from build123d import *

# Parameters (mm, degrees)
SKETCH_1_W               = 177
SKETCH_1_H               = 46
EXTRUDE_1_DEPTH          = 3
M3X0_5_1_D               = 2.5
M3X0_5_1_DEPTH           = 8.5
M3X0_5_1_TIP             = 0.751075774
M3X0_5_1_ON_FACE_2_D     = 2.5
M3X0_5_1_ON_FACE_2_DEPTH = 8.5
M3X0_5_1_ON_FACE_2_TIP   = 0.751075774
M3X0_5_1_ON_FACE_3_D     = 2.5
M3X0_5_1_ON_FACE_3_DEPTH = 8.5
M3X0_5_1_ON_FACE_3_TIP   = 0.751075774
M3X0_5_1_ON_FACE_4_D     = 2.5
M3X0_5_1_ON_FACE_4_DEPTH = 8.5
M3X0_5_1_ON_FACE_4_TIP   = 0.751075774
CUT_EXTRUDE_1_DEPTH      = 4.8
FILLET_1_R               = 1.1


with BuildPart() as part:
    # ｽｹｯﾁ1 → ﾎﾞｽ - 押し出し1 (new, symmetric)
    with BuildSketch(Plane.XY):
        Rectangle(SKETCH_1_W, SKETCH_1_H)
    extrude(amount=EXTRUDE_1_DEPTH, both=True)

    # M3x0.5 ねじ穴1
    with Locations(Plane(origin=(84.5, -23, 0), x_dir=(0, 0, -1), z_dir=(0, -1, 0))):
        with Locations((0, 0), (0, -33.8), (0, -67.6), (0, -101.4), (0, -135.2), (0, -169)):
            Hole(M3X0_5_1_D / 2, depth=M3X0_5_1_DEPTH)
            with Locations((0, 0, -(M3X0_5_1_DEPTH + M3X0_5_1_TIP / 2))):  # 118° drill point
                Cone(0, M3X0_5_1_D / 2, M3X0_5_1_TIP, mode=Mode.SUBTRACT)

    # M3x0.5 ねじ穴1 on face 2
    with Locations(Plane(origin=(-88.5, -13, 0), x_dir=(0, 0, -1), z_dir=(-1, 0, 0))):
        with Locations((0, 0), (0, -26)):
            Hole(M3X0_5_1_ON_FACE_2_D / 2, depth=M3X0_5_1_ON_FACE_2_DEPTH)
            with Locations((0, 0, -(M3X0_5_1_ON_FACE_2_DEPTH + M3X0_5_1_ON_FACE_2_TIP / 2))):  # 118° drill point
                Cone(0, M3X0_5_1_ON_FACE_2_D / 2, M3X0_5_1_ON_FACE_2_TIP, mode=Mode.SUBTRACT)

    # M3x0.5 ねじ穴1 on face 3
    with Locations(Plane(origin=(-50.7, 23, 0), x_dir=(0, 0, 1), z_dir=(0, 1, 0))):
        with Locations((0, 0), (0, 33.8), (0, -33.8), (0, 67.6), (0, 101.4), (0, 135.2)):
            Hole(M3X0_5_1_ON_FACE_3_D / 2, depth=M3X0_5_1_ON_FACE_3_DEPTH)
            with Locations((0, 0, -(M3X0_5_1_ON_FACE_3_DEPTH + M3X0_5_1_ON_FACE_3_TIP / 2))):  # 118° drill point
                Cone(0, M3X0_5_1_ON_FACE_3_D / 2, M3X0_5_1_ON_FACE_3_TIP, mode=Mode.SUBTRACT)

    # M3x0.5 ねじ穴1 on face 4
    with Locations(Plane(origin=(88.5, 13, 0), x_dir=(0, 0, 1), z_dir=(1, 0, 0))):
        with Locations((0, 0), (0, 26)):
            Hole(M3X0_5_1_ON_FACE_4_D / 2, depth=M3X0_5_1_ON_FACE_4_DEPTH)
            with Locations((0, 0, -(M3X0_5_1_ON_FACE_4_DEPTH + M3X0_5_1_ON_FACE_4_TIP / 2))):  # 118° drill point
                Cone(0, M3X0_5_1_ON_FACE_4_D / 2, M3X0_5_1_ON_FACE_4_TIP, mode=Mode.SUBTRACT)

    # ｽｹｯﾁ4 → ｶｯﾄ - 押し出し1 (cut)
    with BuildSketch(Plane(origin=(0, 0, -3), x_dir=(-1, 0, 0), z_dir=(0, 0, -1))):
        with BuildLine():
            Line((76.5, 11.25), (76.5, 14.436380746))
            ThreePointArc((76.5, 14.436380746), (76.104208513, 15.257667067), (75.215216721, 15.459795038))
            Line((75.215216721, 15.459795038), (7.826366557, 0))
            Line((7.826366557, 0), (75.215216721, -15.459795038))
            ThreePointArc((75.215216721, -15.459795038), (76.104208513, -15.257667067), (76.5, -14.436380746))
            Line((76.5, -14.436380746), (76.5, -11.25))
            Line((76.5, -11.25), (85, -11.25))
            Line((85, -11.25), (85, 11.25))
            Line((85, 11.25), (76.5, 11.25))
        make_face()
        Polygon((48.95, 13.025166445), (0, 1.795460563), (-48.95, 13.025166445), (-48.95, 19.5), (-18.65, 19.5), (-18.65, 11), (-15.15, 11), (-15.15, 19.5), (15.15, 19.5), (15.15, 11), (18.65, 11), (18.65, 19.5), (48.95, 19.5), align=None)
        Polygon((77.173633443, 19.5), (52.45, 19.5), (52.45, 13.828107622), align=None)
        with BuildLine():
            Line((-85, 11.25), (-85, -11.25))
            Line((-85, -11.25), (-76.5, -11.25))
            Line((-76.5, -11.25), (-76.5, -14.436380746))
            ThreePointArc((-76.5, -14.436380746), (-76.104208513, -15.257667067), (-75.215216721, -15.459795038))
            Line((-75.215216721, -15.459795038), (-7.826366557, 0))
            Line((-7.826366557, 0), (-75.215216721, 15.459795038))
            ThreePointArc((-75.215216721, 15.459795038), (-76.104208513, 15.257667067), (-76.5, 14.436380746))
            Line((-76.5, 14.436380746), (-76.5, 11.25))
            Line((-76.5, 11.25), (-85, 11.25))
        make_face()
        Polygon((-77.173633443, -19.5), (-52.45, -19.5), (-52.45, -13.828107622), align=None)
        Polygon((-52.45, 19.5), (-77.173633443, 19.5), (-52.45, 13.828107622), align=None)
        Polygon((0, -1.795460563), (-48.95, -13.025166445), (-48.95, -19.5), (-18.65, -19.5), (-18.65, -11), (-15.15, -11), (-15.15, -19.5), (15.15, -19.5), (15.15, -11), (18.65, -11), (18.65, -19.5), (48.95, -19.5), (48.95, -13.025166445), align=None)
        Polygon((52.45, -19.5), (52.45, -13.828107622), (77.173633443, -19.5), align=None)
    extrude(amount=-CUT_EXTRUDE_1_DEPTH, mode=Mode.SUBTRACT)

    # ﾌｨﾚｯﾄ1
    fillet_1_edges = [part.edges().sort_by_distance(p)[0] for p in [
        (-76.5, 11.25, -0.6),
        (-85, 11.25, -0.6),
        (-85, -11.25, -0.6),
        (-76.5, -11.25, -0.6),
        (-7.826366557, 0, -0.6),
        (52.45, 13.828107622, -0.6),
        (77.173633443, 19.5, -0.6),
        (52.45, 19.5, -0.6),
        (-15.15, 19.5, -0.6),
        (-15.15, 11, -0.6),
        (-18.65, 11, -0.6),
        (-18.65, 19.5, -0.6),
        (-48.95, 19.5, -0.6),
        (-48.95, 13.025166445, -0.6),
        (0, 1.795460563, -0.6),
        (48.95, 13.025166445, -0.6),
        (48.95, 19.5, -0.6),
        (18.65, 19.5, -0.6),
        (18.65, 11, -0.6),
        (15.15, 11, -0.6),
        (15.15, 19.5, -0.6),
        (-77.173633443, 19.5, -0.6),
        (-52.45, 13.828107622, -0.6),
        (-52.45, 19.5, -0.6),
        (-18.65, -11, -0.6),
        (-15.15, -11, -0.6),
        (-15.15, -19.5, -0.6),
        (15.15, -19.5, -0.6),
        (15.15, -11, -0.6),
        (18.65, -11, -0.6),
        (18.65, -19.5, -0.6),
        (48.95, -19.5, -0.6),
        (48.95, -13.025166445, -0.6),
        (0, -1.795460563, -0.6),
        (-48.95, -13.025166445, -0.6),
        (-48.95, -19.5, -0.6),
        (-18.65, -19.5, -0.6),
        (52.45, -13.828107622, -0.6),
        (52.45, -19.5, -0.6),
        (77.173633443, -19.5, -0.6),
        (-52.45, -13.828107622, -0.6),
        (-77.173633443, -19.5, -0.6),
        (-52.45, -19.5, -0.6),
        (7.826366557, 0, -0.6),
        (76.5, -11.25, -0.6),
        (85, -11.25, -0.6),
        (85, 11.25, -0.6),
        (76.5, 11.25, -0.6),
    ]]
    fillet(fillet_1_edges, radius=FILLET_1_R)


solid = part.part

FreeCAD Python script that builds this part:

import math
import FreeCAD as App
import Part
import Sketcher


def edges_at(feature, points):
    """Names of the edges that pass closest to the given points."""
    edges = feature.Shape.Edges
    near = lambda p: min(range(len(edges)), key=lambda i: edges[i].distToShape(Part.Vertex(*p))[0])
    return sorted({f"Edge{near(p) + 1}" for p in points})


def add_polygon(sketch, points):
    """Adds a closed chain of lines whose ends are joined by coincident constraints."""
    first, n = sketch.GeometryCount, len(points)
    for a, b in zip(points, points[1:] + points[:1]):
        sketch.addGeometry(Part.LineSegment(App.Vector(*a, 0), App.Vector(*b, 0)), False)
    for i in range(n):
        sketch.addConstraint(Sketcher.Constraint("Coincident", first + i, 2, first + (i + 1) % n, 1))

doc = App.newDocument("Part")
body = doc.addObject("PartDesign::Body", "Body")

# Sketch on XY plane
sketch1 = body.newObject("Sketcher::SketchObject", "Sketch")
sketch1.AttachmentSupport = (doc.getObject("XY_Plane"), [""])
sketch1.MapMode = "FlatFace"
add_polygon(sketch1, [(-88.5, 23), (-88.5, -23), (88.5, -23), (88.5, 23)])  # lines 0-3
sketch1.addConstraint([
    Sketcher.Constraint("Vertical", 0),
    Sketcher.Constraint("Horizontal", 1),
    Sketcher.Constraint("Vertical", 2),
    Sketcher.Constraint("Horizontal", 3),
    Sketcher.Constraint("Symmetric", 0, 2, 2, 2, -1, 1),
    Sketcher.Constraint("DistanceX", 1, 1, 1, 2, 177.0),
    Sketcher.Constraint("DistanceY", 0, 2, 0, 1, 46.0),
])
pad1 = body.newObject("PartDesign::Pad", "Pad")
pad1.Profile = sketch1
pad1.Length = 6
pad1.Midplane = True

# Sketch on XZ plane
sketch2 = body.newObject("Sketcher::SketchObject", "Sketch001")
sketch2.AttachmentSupport = (doc.getObject("XZ_Plane"), [""])
sketch2.MapMode = "FlatFace"
sketch2.AttachmentOffset = App.Placement(App.Vector(0, 0, 23), App.Rotation())
sketch2.addGeometry([
    Part.Circle(App.Vector(84.5, 0, 0), App.Vector(0, 0, 1), 1.25),  # 0
    Part.Circle(App.Vector(50.7, 0, 0), App.Vector(0, 0, 1), 1.25),  # 1
    Part.Circle(App.Vector(16.9, 0, 0), App.Vector(0, 0, 1), 1.25),  # 2
    Part.Circle(App.Vector(-16.9, 0, 0), App.Vector(0, 0, 1), 1.25),  # 3
    Part.Circle(App.Vector(-50.7, 0, 0), App.Vector(0, 0, 1), 1.25),  # 4
    Part.Circle(App.Vector(-84.5, 0, 0), App.Vector(0, 0, 1), 1.25),  # 5
], False)
sketch2.addConstraint([
    Sketcher.Constraint("Equal", 0, 1),
    Sketcher.Constraint("Equal", 1, 2),
    Sketcher.Constraint("Equal", 2, 3),
    Sketcher.Constraint("Equal", 3, 4),
    Sketcher.Constraint("Equal", 4, 5),
    Sketcher.Constraint("Symmetric", 2, 3, 3, 3, -1, 1),
    Sketcher.Constraint("Symmetric", 1, 3, 4, 3, -1, 1),
    Sketcher.Constraint("Symmetric", 0, 3, 5, 3, -1, 1),
    Sketcher.Constraint("PointOnObject", 0, 3, -1),
    Sketcher.Constraint("PointOnObject", 1, 3, -1),
    Sketcher.Constraint("PointOnObject", 2, 3, -1),
    Sketcher.Constraint("Diameter", 0, 2.5),
    Sketcher.Constraint("DistanceX", 5, 3, 0, 3, 169.0),
    Sketcher.Constraint("DistanceX", -1, 1, 1, 3, 50.7),
    Sketcher.Constraint("DistanceX", -1, 1, 2, 3, 16.9),
])
doc.recompute()
hole = body.newObject("PartDesign::Hole", "Hole")
hole.Profile = sketch2
hole.ThreadType = "None"
hole.Diameter = 2.5
hole.DepthType = "Dimension"
hole.Depth = 8.5
hole.DrillPoint = "Angled"
hole.DrillPointAngle = 118

# Sketch on YZ plane
sketch3 = body.newObject("Sketcher::SketchObject", "Sketch002")
sketch3.AttachmentSupport = (doc.getObject("YZ_Plane"), [""])
sketch3.MapMode = "FlatFace"
sketch3.AttachmentOffset = App.Placement(App.Vector(0, 0, -88.5), App.Rotation())
sketch3.addGeometry([
    Part.Circle(App.Vector(-13, 0, 0), App.Vector(0, 0, 1), 1.25),
    Part.Circle(App.Vector(13, 0, 0), App.Vector(0, 0, 1), 1.25),
], False)
sketch3.addConstraint([
    Sketcher.Constraint("Equal", 0, 1),
    Sketcher.Constraint("Symmetric", 0, 3, 1, 3, -1, 1),
    Sketcher.Constraint("PointOnObject", 0, 3, -1),
    Sketcher.Constraint("Diameter", 0, 2.5),
    Sketcher.Constraint("DistanceX", 0, 3, -1, 1, 13.0),
])
doc.recompute()
hole2 = body.newObject("PartDesign::Hole", "Hole001")
hole2.Profile = sketch3
hole2.ThreadType = "None"
hole2.Diameter = 2.5
hole2.DepthType = "Dimension"
hole2.Depth = 8.5
hole2.DrillPoint = "Angled"
hole2.DrillPointAngle = 118
hole2.Reversed = True

# Sketch on XZ plane
sketch4 = body.newObject("Sketcher::SketchObject", "Sketch003")
sketch4.AttachmentSupport = (doc.getObject("XZ_Plane"), [""])
sketch4.MapMode = "FlatFace"
sketch4.AttachmentOffset = App.Placement(App.Vector(0, 0, -23), App.Rotation())
sketch4.addGeometry([
    Part.Circle(App.Vector(-50.7, 0, 0), App.Vector(0, 0, 1), 1.25),  # 0
    Part.Circle(App.Vector(-16.9, 0, 0), App.Vector(0, 0, 1), 1.25),  # 1
    Part.Circle(App.Vector(-84.5, 0, 0), App.Vector(0, 0, 1), 1.25),  # 2
    Part.Circle(App.Vector(16.9, 0, 0), App.Vector(0, 0, 1), 1.25),  # 3
    Part.Circle(App.Vector(50.7, 0, 0), App.Vector(0, 0, 1), 1.25),  # 4
    Part.Circle(App.Vector(84.5, 0, 0), App.Vector(0, 0, 1), 1.25),  # 5
], False)
sketch4.addConstraint([
    Sketcher.Constraint("Equal", 0, 1),
    Sketcher.Constraint("Equal", 1, 2),
    Sketcher.Constraint("Equal", 2, 3),
    Sketcher.Constraint("Equal", 3, 4),
    Sketcher.Constraint("Equal", 4, 5),
    Sketcher.Constraint("Symmetric", 1, 3, 3, 3, -1, 1),
    Sketcher.Constraint("Symmetric", 0, 3, 4, 3, -1, 1),
    Sketcher.Constraint("Symmetric", 2, 3, 5, 3, -1, 1),
    Sketcher.Constraint("PointOnObject", 0, 3, -1),
    Sketcher.Constraint("PointOnObject", 1, 3, -1),
    Sketcher.Constraint("PointOnObject", 2, 3, -1),
    Sketcher.Constraint("Diameter", 0, 2.5),
    Sketcher.Constraint("DistanceX", 2, 3, 5, 3, 169.0),
    Sketcher.Constraint("DistanceX", 0, 3, -1, 1, 50.7),
    Sketcher.Constraint("DistanceX", 1, 3, -1, 1, 16.9),
])
doc.recompute()
hole3 = body.newObject("PartDesign::Hole", "Hole002")
hole3.Profile = sketch4
hole3.ThreadType = "None"
hole3.Diameter = 2.5
hole3.DepthType = "Dimension"
hole3.Depth = 8.5
hole3.DrillPoint = "Angled"
hole3.DrillPointAngle = 118
hole3.Reversed = True

# Sketch on YZ plane
sketch5 = body.newObject("Sketcher::SketchObject", "Sketch004")
sketch5.AttachmentSupport = (doc.getObject("YZ_Plane"), [""])
sketch5.MapMode = "FlatFace"
sketch5.AttachmentOffset = App.Placement(App.Vector(0, 0, 88.5), App.Rotation())
sketch5.addGeometry([
    Part.Circle(App.Vector(13, 0, 0), App.Vector(0, 0, 1), 1.25),
    Part.Circle(App.Vector(-13, 0, 0), App.Vector(0, 0, 1), 1.25),
], False)
sketch5.addConstraint([
    Sketcher.Constraint("Equal", 0, 1),
    Sketcher.Constraint("Symmetric", 0, 3, 1, 3, -1, 1),
    Sketcher.Constraint("PointOnObject", 0, 3, -1),
    Sketcher.Constraint("Diameter", 0, 2.5),
    Sketcher.Constraint("DistanceX", -1, 1, 0, 3, 13.0),
])
doc.recompute()
hole4 = body.newObject("PartDesign::Hole", "Hole003")
hole4.Profile = sketch5
hole4.ThreadType = "None"
hole4.Diameter = 2.5
hole4.DepthType = "Dimension"
hole4.Depth = 8.5
hole4.DrillPoint = "Angled"
hole4.DrillPointAngle = 118

# Sketch on XY plane
sketch6 = body.newObject("Sketcher::SketchObject", "Sketch005")
sketch6.AttachmentSupport = (doc.getObject("XY_Plane"), [""])
sketch6.MapMode = "FlatFace"
sketch6.AttachmentOffset = App.Placement(App.Vector(0, 0, -3), App.Rotation())
sketch6.addGeometry(Part.LineSegment(App.Vector(-76.5, 11.25, 0), App.Vector(-76.5, 14.436381, 0)), False)  # 0
sketch6.addGeometry(Part.ArcOfCircle(Part.Circle(App.Vector(-75.45, 14.436381, 0), App.Vector(0, 0, 1), 1.05), math.radians(77.07925), math.radians(180)), False)  # 1
sketch6.addGeometry(Part.LineSegment(App.Vector(-75.215217, 15.459795, 0), App.Vector(-7.826367, 0, 0)), False)  # 2
sketch6.addGeometry(Part.LineSegment(App.Vector(-7.826367, 0, 0), App.Vector(-75.215217, -15.459795, 0)), False)  # 3
sketch6.addGeometry(Part.ArcOfCircle(Part.Circle(App.Vector(-75.45, -14.436381, 0), App.Vector(0, 0, 1), 1.05), math.radians(-180), math.radians(-77.07925)), False)  # 4
sketch6.addGeometry(Part.LineSegment(App.Vector(-76.5, -14.436381, 0), App.Vector(-76.5, -11.25, 0)), False)  # 5
sketch6.addGeometry(Part.LineSegment(App.Vector(-76.5, -11.25, 0), App.Vector(-85, -11.25, 0)), False)  # 6
sketch6.addGeometry(Part.LineSegment(App.Vector(-85, -11.25, 0), App.Vector(-85, 11.25, 0)), False)  # 7
sketch6.addGeometry(Part.LineSegment(App.Vector(-85, 11.25, 0), App.Vector(-76.5, 11.25, 0)), False)  # 8
add_polygon(sketch6, [(0, 1.795461), (-48.95, 13.025166), (-48.95, 19.5), (-18.65, 19.5), (-18.65, 11), (-15.15, 11), (-15.15, 19.5), (15.15, 19.5), (15.15, 11), (18.65, 11), (18.65, 19.5), (48.95, 19.5), (48.95, 13.025166)])  # lines 9-21
add_polygon(sketch6, [(-77.173633, 19.5), (-52.45, 19.5), (-52.45, 13.828108)])  # lines 22-24
sketch6.addGeometry(Part.LineSegment(App.Vector(85, 11.25, 0), App.Vector(85, -11.25, 0)), False)  # 25
sketch6.addGeometry(Part.LineSegment(App.Vector(85, -11.25, 0), App.Vector(76.5, -11.25, 0)), False)  # 26
sketch6.addGeometry(Part.LineSegment(App.Vector(76.5, -11.25, 0), App.Vector(76.5, -14.436381, 0)), False)  # 27
sketch6.addGeometry(Part.ArcOfCircle(Part.Circle(App.Vector(75.45, -14.436381, 0), App.Vector(0, 0, 1), 1.05), math.radians(-102.92075), math.radians(0)), False)  # 28
sketch6.addGeometry(Part.LineSegment(App.Vector(75.215217, -15.459795, 0), App.Vector(7.826367, 0, 0)), False)  # 29
sketch6.addGeometry(Part.LineSegment(App.Vector(7.826367, 0, 0), App.Vector(75.215217, 15.459795, 0)), False)  # 30
sketch6.addGeometry(Part.ArcOfCircle(Part.Circle(App.Vector(75.45, 14.436381, 0), App.Vector(0, 0, 1), 1.05), math.radians(0), math.radians(102.92075)), False)  # 31
sketch6.addGeometry(Part.LineSegment(App.Vector(76.5, 14.436381, 0), App.Vector(76.5, 11.25, 0)), False)  # 32
sketch6.addGeometry(Part.LineSegment(App.Vector(76.5, 11.25, 0), App.Vector(85, 11.25, 0)), False)  # 33
add_polygon(sketch6, [(77.173633, -19.5), (52.45, -19.5), (52.45, -13.828108)])  # lines 34-36
add_polygon(sketch6, [(52.45, 19.5), (77.173633, 19.5), (52.45, 13.828108)])  # lines 37-39
add_polygon(sketch6, [(0, -1.795461), (48.95, -13.025166), (48.95, -19.5), (18.65, -19.5), (18.65, -11), (15.15, -11), (15.15, -19.5), (-15.15, -19.5), (-15.15, -11), (-18.65, -11), (-18.65, -19.5), (-48.95, -19.5), (-48.95, -13.025166)])  # lines 40-52
add_polygon(sketch6, [(-52.45, -13.828108), (-52.45, -19.5), (-77.173633, -19.5)])  # lines 53-55
sketch6.addConstraint([
    Sketcher.Constraint("Tangent", 0, 2, 1, 2),
    Sketcher.Constraint("Tangent", 1, 1, 2, 1),
    Sketcher.Constraint("Coincident", 2, 2, 3, 1),
    Sketcher.Constraint("Tangent", 3, 2, 4, 2),
    Sketcher.Constraint("Tangent", 4, 1, 5, 1),
    Sketcher.Constraint("Coincident", 5, 2, 6, 1),
    Sketcher.Constraint("Coincident", 6, 2, 7, 1),
    Sketcher.Constraint("Coincident", 7, 2, 8, 1),
    Sketcher.Constraint("Coincident", 8, 2, 0, 1),
    Sketcher.Constraint("Coincident", 25, 2, 26, 1),
    Sketcher.Constraint("Coincident", 26, 2, 27, 1),
    Sketcher.Constraint("Tangent", 27, 2, 28, 2),
    Sketcher.Constraint("Tangent", 28, 1, 29, 1),
    Sketcher.Constraint("Coincident", 29, 2, 30, 1),
    Sketcher.Constraint("Tangent", 30, 2, 31, 2),
    Sketcher.Constraint("Tangent", 31, 1, 32, 1),
    Sketcher.Constraint("Coincident", 32, 2, 33, 1),
    Sketcher.Constraint("Coincident", 33, 2, 25, 1),
    Sketcher.Constraint("Vertical", 0),
    Sketcher.Constraint("Vertical", 5),
    Sketcher.Constraint("Horizontal", 6),
    Sketcher.Constraint("Vertical", 7),
    Sketcher.Constraint("Horizontal", 8),
    Sketcher.Constraint("Vertical", 10),
    Sketcher.Constraint("Horizontal", 11),
    Sketcher.Constraint("Vertical", 12),
    Sketcher.Constraint("Horizontal", 13),
    Sketcher.Constraint("Vertical", 14),
    Sketcher.Constraint("Horizontal", 15),
    Sketcher.Constraint("Vertical", 16),
    Sketcher.Constraint("Horizontal", 17),
    Sketcher.Constraint("Vertical", 18),
    Sketcher.Constraint("Horizontal", 19),
    Sketcher.Constraint("Vertical", 20),
    Sketcher.Constraint("Horizontal", 22),
    Sketcher.Constraint("Vertical", 23),
    Sketcher.Constraint("Vertical", 25),
    Sketcher.Constraint("Horizontal", 26),
    Sketcher.Constraint("Vertical", 27),
    Sketcher.Constraint("Vertical", 32),
    Sketcher.Constraint("Horizontal", 33),
    Sketcher.Constraint("Horizontal", 34),
    Sketcher.Constraint("Vertical", 35),
    Sketcher.Constraint("Horizontal", 37),
    Sketcher.Constraint("Vertical", 39),
    Sketcher.Constraint("Vertical", 41),
    Sketcher.Constraint("Horizontal", 42),
    Sketcher.Constraint("Vertical", 43),
    Sketcher.Constraint("Horizontal", 44),
    Sketcher.Constraint("Vertical", 45),
    Sketcher.Constraint("Horizontal", 46),
    Sketcher.Constraint("Vertical", 47),
    Sketcher.Constraint("Horizontal", 48),
    Sketcher.Constraint("Vertical", 49),
    Sketcher.Constraint("Horizontal", 50),
    Sketcher.Constraint("Vertical", 51),
    Sketcher.Constraint("Vertical", 53),
    Sketcher.Constraint("Horizontal", 54),
    Sketcher.Constraint("Equal", 1, 4),
    Sketcher.Constraint("Equal", 4, 28),
    Sketcher.Constraint("Equal", 28, 31),
    Sketcher.Constraint("Symmetric", 1, 3, 28, 3, -1, 1),
    Sketcher.Constraint("Symmetric", 4, 3, 31, 3, -1, 1),
    Sketcher.Constraint("Symmetric", 7, 2, 25, 2, -1, 1),
    Sketcher.Constraint("Symmetric", 2, 2, 29, 2, -1, 1),
    Sketcher.Constraint("Symmetric", 22, 2, 34, 2, -1, 1),
    Sketcher.Constraint("Symmetric", 9, 2, 40, 2, -1, 1),
    Sketcher.Constraint("Symmetric", 11, 2, 42, 2, -1, 1),
    Sketcher.Constraint("Symmetric", 13, 2, 44, 2, -1, 1),
    Sketcher.Constraint("Symmetric", 15, 2, 46, 2, -1, 1),
    Sketcher.Constraint("Symmetric", 17, 2, 48, 2, -1, 1),
    Sketcher.Constraint("Symmetric", 19, 2, 50, 2, -1, 1),
    Sketcher.Constraint("Symmetric", 21, 2, 52, 2, -1, 1),
    Sketcher.Constraint("Symmetric", 39, 2, 53, 2, -1, 1),
    Sketcher.Constraint("Symmetric", 4, 3, 28, 3, -2),
    Sketcher.Constraint("Symmetric", 13, 2, 16, 2, -2),
    Sketcher.Constraint("Symmetric", 11, 2, 18, 2, -2),
    Sketcher.Constraint("Symmetric", 9, 2, 20, 2, -2),
    Sketcher.Constraint("Symmetric", 24, 2, 37, 2, -2),
    Sketcher.Constraint("Symmetric", 23, 2, 38, 2, -2),
    Sketcher.Constraint("PointOnObject", 2, 2, -1),
    Sketcher.Constraint("PointOnObject", 21, 2, -2),
    Sketcher.Constraint("Parallel", 2, 9),
    Sketcher.Constraint("Parallel", 9, 24),
    Sketcher.Constraint("Parallel", 29, 36),
    Sketcher.Constraint("Parallel", 38, 52),
    Sketcher.Constraint("Parallel", 52, 55),
    Sketcher.Constraint("Horizontal", 11, 2, 14, 2),
    Sketcher.Constraint("Horizontal", 19, 2, 22, 2),
    Sketcher.Constraint("Horizontal", 6, 2, 25, 2),
    Sketcher.Constraint("Horizontal", 8, 2, 32, 2),
    Sketcher.Constraint("Horizontal", 35, 2, 55, 2),
    Sketcher.Constraint("Vertical", 36, 2, 37, 2),
    Sketcher.Constraint("Equal", 11, 15),
    Sketcher.Constraint("Equal", 33, 12),
    Sketcher.Constraint("Radius", 1, 1.05),
    Sketcher.Constraint("DistanceX", 6, 2, 6, 1, 8.5),
    Sketcher.Constraint("DistanceX", 11, 1, 11, 2, 30.3),
    Sketcher.Constraint("DistanceX", 13, 1, 13, 2, 3.5),
    Sketcher.Constraint("DistanceY", 7, 1, 7, 2, 22.5),
    Sketcher.Constraint("DistanceX", 6, 2, -1, 1, 85.0),
    Sketcher.Constraint("DistanceY", -1, 1, 12, 2, 11.0),
    Sketcher.Constraint("DistanceX", 1, 3, 22, 2, 23.0),
    Sketcher.Constraint("DistanceY", 0, 1, 0, 2, 3.186381),
    Sketcher.Constraint("Distance", 2, 69.139442),
    Sketcher.Constraint("Distance", 24, 25.365891),
    Sketcher.Constraint("DistanceY", 10, 1, 10, 2, 6.474834),
])
pocket1 = body.newObject("PartDesign::Pocket", "Pocket")
pocket1.Profile = sketch6
pocket1.Length = 4.8
pocket1.Reversed = True
doc.recompute()

fillet = body.newObject("PartDesign::Fillet", "Fillet")
fillet.Base = (pocket1, edges_at(pocket1, [
    (-76.5, 11.25, -0.6),
    (-85, 11.25, -0.6),
    (-85, -11.25, -0.6),
    (-76.5, -11.25, -0.6),
    (-7.826, 0, -0.6),
    (52.45, 13.828, -0.6),
    (77.174, 19.5, -0.6),
    (52.45, 19.5, -0.6),
    (-15.15, 19.5, -0.6),
    (-15.15, 11, -0.6),
    (-18.65, 11, -0.6),
    (-18.65, 19.5, -0.6),
    (-48.95, 19.5, -0.6),
    (-48.95, 13.025, -0.6),
    (0, 1.795, -0.6),
    (48.95, 13.025, -0.6),
    (48.95, 19.5, -0.6),
    (18.65, 19.5, -0.6),
    (18.65, 11, -0.6),
    (15.15, 11, -0.6),
    (15.15, 19.5, -0.6),
    (-77.174, 19.5, -0.6),
    (-52.45, 13.828, -0.6),
    (-52.45, 19.5, -0.6),
    (-18.65, -11, -0.6),
    (-15.15, -11, -0.6),
    (-15.15, -19.5, -0.6),
    (15.15, -19.5, -0.6),
    (15.15, -11, -0.6),
    (18.65, -11, -0.6),
    (18.65, -19.5, -0.6),
    (48.95, -19.5, -0.6),
    (48.95, -13.025, -0.6),
    (0, -1.795, -0.6),
    (-48.95, -13.025, -0.6),
    (-48.95, -19.5, -0.6),
    (-18.65, -19.5, -0.6),
    (52.45, -13.828, -0.6),
    (52.45, -19.5, -0.6),
    (77.174, -19.5, -0.6),
    (-52.45, -13.828, -0.6),
    (-77.174, -19.5, -0.6),
    (-52.45, -19.5, -0.6),
    (7.826, 0, -0.6),
    (76.5, -11.25, -0.6),
    (85, -11.25, -0.6),
    (85, 11.25, -0.6),
    (76.5, 11.25, -0.6),
]))
fillet.Radius = 1.1

doc.recompute()
